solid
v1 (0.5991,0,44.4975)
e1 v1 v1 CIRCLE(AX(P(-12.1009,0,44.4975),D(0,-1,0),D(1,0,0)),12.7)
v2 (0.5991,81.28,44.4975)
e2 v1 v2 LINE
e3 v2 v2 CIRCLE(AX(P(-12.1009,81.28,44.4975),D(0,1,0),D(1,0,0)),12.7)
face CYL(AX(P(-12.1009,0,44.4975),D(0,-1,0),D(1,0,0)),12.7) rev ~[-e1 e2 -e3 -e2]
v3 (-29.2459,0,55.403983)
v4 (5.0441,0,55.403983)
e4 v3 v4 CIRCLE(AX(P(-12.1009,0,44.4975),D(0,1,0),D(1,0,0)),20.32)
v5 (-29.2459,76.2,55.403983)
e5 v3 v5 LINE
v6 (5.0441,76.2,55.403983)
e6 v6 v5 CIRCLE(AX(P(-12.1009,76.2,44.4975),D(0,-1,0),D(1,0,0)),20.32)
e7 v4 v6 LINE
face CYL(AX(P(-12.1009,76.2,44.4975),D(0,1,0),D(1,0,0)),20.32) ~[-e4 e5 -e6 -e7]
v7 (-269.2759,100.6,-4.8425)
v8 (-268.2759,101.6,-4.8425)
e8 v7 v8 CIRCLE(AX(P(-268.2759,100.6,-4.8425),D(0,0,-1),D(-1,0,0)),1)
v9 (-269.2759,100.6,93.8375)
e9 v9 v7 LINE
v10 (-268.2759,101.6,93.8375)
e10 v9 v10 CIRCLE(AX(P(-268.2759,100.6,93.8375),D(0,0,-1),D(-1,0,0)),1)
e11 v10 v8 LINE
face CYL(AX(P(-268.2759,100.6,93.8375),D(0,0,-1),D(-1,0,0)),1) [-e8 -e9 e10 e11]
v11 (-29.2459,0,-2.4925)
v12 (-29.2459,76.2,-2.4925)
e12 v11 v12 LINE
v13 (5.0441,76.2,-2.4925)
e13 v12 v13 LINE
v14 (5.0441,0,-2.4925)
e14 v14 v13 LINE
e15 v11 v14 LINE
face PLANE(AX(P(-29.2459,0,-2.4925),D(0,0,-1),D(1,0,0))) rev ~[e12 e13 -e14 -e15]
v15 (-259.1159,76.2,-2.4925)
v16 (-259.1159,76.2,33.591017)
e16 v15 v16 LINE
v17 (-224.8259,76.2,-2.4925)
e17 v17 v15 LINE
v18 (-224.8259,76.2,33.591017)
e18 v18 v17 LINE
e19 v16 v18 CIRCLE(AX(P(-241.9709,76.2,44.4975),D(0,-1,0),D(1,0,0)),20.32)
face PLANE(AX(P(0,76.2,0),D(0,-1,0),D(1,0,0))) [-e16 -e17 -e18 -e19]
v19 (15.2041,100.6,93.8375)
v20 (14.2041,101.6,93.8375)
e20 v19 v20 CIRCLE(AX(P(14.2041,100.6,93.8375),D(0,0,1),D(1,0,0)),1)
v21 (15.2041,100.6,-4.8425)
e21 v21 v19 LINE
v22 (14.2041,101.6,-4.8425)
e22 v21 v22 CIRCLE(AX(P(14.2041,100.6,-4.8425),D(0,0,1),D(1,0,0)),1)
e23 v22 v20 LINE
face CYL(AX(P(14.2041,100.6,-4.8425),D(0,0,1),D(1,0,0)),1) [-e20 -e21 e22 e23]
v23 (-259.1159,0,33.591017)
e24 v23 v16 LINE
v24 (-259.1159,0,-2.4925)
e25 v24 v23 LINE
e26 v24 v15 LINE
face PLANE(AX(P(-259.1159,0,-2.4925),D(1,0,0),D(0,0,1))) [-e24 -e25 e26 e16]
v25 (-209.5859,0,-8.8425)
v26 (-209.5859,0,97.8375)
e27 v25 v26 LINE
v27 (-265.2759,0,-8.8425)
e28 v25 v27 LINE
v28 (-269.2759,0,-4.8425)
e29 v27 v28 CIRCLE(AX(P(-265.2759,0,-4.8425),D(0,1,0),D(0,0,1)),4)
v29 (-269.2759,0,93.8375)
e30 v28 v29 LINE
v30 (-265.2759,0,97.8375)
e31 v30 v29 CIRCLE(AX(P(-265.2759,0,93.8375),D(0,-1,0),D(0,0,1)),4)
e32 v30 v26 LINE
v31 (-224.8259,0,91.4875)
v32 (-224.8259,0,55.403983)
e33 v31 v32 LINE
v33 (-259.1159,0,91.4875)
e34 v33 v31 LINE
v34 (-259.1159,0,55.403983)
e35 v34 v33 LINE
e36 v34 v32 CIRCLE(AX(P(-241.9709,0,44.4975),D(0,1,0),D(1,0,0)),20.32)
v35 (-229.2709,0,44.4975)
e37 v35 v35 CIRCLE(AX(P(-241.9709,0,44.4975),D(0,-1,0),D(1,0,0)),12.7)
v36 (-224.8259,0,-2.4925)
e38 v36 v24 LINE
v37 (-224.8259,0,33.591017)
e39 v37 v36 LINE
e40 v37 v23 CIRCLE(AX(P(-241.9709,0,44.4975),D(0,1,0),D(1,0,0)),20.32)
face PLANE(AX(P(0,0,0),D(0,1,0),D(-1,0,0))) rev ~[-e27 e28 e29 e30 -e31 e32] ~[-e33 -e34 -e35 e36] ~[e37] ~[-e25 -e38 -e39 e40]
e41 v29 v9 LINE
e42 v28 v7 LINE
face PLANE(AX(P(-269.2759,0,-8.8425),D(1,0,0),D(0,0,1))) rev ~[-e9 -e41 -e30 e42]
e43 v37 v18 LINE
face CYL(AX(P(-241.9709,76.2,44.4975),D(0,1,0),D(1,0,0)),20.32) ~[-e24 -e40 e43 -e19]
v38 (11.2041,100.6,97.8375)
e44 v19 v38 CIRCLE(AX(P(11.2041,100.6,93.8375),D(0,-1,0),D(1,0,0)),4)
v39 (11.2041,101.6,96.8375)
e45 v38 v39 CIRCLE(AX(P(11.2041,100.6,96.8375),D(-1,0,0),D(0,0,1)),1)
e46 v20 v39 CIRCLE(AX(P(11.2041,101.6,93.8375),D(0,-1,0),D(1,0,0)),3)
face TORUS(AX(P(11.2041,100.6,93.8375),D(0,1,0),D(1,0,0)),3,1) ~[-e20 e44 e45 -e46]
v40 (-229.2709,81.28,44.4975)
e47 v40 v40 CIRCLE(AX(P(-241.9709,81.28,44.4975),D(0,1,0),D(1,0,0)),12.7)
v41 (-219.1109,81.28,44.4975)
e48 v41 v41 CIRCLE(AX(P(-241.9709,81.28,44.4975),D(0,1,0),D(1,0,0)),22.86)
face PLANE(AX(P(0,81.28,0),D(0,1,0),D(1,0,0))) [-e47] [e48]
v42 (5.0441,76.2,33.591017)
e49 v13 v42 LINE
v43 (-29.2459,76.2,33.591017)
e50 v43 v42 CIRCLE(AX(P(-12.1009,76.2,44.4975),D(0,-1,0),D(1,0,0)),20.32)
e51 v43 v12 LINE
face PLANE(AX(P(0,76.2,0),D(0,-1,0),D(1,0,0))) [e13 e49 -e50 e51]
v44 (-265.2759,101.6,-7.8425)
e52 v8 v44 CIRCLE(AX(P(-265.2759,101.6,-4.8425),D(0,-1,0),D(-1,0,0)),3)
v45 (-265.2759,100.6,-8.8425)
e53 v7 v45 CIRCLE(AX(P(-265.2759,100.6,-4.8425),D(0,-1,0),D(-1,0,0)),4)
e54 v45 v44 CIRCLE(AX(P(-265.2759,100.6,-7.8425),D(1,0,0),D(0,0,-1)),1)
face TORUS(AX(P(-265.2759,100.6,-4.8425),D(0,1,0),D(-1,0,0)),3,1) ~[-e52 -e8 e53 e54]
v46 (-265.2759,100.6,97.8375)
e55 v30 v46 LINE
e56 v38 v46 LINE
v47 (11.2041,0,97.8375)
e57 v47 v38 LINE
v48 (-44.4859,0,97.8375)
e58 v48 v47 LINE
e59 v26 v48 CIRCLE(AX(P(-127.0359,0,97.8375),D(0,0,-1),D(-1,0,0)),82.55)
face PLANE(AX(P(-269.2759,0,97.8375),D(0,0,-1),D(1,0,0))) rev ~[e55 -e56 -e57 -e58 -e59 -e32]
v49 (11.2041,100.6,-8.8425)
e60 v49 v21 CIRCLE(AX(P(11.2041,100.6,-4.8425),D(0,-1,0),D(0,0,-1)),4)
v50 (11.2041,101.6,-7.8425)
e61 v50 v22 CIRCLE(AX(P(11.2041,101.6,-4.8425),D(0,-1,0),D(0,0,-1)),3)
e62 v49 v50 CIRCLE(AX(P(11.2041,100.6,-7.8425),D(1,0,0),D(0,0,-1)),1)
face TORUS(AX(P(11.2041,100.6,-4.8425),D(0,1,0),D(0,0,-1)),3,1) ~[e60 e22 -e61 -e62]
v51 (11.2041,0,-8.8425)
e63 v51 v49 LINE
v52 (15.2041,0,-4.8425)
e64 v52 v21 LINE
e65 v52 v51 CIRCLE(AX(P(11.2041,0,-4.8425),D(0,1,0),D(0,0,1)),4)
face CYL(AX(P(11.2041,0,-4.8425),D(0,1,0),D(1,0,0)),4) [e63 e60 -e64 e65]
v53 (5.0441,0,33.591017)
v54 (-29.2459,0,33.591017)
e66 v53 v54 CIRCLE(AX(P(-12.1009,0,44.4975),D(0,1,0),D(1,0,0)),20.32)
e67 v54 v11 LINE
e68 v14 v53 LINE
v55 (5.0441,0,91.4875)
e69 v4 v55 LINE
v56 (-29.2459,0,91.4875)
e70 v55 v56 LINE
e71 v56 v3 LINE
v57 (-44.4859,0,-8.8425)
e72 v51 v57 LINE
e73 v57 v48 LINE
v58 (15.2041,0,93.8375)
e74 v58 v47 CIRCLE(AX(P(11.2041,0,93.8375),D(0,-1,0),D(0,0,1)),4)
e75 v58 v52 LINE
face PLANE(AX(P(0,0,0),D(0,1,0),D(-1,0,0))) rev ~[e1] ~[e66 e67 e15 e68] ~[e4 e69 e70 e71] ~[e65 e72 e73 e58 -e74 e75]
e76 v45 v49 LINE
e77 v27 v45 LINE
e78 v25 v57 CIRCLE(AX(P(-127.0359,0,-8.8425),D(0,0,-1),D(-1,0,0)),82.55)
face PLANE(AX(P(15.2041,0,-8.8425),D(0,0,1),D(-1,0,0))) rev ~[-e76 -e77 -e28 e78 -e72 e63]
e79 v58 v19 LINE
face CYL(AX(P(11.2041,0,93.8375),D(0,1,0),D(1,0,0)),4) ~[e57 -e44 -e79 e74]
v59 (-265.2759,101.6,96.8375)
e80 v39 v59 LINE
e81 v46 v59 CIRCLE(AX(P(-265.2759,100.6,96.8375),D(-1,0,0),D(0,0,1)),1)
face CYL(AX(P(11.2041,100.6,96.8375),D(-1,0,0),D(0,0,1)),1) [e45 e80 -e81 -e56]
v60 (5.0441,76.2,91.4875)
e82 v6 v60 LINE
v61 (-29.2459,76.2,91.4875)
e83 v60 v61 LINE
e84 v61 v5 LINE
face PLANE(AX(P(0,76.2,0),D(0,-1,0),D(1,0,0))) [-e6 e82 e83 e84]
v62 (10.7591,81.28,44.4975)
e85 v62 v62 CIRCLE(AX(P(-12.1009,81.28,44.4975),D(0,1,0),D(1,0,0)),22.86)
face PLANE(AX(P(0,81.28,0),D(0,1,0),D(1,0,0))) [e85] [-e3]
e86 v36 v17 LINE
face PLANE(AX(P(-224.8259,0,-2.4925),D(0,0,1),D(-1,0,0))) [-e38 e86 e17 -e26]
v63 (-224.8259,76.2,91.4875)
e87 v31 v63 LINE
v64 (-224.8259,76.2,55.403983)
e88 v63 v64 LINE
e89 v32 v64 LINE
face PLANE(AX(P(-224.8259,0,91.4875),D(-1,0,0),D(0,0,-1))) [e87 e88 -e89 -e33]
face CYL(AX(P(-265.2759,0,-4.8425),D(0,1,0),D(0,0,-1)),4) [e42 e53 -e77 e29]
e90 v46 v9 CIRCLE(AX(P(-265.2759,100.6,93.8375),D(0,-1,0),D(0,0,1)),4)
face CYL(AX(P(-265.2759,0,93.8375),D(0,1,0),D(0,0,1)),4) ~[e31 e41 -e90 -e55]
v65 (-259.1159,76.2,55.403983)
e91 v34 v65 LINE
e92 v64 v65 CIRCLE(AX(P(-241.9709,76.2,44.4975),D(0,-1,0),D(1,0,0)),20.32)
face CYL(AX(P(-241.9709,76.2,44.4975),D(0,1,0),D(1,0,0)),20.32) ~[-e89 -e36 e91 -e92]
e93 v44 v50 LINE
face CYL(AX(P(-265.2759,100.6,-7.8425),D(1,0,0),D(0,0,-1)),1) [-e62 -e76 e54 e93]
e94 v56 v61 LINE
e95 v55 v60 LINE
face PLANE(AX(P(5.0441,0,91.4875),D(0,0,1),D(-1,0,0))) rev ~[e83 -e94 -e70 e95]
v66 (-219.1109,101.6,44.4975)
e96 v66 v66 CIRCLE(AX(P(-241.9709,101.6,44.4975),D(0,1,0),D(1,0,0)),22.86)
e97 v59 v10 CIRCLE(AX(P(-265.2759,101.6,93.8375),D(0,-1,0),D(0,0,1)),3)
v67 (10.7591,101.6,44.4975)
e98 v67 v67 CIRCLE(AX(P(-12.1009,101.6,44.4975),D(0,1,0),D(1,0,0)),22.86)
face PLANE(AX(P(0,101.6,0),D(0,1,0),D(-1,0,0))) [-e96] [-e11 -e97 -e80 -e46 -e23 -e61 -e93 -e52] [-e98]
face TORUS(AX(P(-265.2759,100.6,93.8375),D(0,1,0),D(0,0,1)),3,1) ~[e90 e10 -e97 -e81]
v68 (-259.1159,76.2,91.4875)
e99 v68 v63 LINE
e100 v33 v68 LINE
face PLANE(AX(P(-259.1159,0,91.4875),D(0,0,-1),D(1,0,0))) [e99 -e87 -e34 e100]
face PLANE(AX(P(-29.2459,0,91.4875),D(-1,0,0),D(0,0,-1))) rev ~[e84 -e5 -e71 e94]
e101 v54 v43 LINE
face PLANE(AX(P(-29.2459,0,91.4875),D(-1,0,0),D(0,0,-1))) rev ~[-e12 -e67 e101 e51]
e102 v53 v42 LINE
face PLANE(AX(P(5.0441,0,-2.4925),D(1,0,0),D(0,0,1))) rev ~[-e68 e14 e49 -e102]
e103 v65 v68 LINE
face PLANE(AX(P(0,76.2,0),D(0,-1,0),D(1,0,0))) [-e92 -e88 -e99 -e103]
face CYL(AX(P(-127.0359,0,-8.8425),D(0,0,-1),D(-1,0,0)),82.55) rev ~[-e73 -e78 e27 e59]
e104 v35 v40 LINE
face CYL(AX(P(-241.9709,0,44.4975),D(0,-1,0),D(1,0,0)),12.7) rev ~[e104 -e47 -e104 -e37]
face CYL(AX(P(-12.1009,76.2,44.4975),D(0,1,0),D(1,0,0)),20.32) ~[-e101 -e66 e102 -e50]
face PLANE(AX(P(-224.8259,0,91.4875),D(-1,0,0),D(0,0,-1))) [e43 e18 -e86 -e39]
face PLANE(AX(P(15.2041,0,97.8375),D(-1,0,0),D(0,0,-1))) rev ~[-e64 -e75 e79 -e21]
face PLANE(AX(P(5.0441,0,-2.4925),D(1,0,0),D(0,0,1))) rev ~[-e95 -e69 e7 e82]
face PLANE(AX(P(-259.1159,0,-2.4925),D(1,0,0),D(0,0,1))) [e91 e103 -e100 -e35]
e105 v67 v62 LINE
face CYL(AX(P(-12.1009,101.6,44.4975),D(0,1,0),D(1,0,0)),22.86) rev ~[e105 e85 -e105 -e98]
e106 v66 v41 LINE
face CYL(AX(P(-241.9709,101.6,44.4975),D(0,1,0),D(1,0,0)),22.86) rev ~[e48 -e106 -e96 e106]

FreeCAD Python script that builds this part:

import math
import FreeCAD as App
import Part
import Sketcher
from FreeCAD import Vector
Q = App.Units.Quantity


def edges_at(feature, points):
    """Names of the edges that pass closest to the given points."""
    edges = feature.Shape.Edges
    near = lambda p: min(range(len(edges)), key=lambda i: edges[i].distToShape(Part.Vertex(*p))[0])
    return sorted({f"Edge{near(p) + 1}" for p in points})

doc = App.newDocument("Part")
params = doc.addObject("Spreadsheet::Sheet", "Params")
for row, (alias, value) in enumerate([
    ("sketch1_width", "11.2 in"),
    ("sketch1_height", "4.2 in"),
    ("pad1_length", "4 in"),
    ("sketch2_radius", "3.25 in"),
    ("pocket1_length", "5 in"),
    ("sketch3_height", "3.7 in"),
    ("sketch3_width", "1.35 in"),
    ("pocket2_length", "3 in"),
    ("sketch4_diameter", "1.6 in"),
    ("pad2_length", "3 in"),
    ("sketch5_diameter", "1 in"),
    ("pocket3_length", "4 in"),
    ("sketch6_diameter", "1.8 in"),
    ("sketch6_diameter2", "1 in"),
    ("pocket4_length", "0.8 in"),
    ("sketch7_height", "3.7 in"),
    ("sketch7_width", "1.35 in"),
    ("pocket5_length", "3 in"),
    ("sketch8_diameter", "1.6 in"),
    ("pad3_length", "3 in"),
    ("sketch9_diameter", "1 in"),
    ("pocket6_length", "4 in"),
    ("sketch10_diameter", "1.8 in"),
    ("sketch10_diameter2", "1 in"),
    ("pocket7_length", "0.8 in"),
    ("fillet_radius", "4 mm"),
    ("fillet2_radius", "1 mm"),
], start=1):
    params.set(f"A{row}", alias)
    params.set(f"B{row}", "=" + value)
    params.setAlias(f"B{row}", alias)

body = doc.addObject("PartDesign::Body", "Body")

# Sketch on XZ plane
sketch1 = body.newObject("Sketcher::SketchObject", "Sketch")
sketch1.AttachmentSupport = (doc.getObject("XZ_Plane"), [""])
sketch1.MapMode = "FlatFace"
sketch1.addGeometry([
    Part.LineSegment(Vector(15, 98, 0), Vector(15, -9, 0)),
    Part.LineSegment(Vector(15, -9, 0), Vector(-269, -9, 0)),
    Part.LineSegment(Vector(-269, -9, 0), Vector(-269, 98, 0)),
    Part.LineSegment(Vector(-269, 98, 0), Vector(15, 98, 0)),
], False)
sketch1.addConstraint([
    Sketcher.Constraint("Coincident", 0, 2, 1, 1),
    Sketcher.Constraint("Coincident", 1, 2, 2, 1),
    Sketcher.Constraint("Coincident", 2, 2, 3, 1),
    Sketcher.Constraint("Coincident", 3, 2, 0, 1),
    Sketcher.Constraint("Vertical", 0),
    Sketcher.Constraint("Horizontal", 1),
    Sketcher.Constraint("Vertical", 2),
    Sketcher.Constraint("Horizontal", 3),
    Sketcher.Constraint("DistanceX", 1, 2, 1, 1, Q("11.2 in")),
    Sketcher.Constraint("DistanceY", 0, 2, 0, 1, Q("4.2 in")),
    Sketcher.Constraint("DistanceX", -1, 1, 0, 2, 15.204),
    Sketcher.Constraint("DistanceY", 0, 2, -1, 1, 8.8425),
])
sketch1.setExpression("Constraints[8]", "Params.sketch1_width")
sketch1.setExpression("Constraints[9]", "Params.sketch1_height")
pad1 = body.newObject("PartDesign::Pad", "Pad")
pad1.Profile = sketch1
pad1.setExpression("Length", "Params.pad1_length")
pad1.Reversed = True

# Sketch on XY plane
sketch2 = body.newObject("Sketcher::SketchObject", "Sketch001")
sketch2.AttachmentSupport = (doc.getObject("XY_Plane"), [""])
sketch2.MapMode = "FlatFace"
sketch2.AttachmentOffset = App.Placement(Vector(0, 0, -8.8425), App.Rotation())
sketch2.addGeometry([
    Part.ArcOfCircle(Part.Circle(Vector(-127, 0, 0), Vector(0, 0, 1), 83), math.radians(0), math.radians(180)),
    Part.LineSegment(Vector(-44, 0, 0), Vector(-210, 0, 0)),
], False)
sketch2.addConstraint([
    Sketcher.Constraint("Coincident", 0, 1, 1, 1),
    Sketcher.Constraint("Coincident", 1, 2, 0, 2),
    Sketcher.Constraint("Horizontal", 1),
    Sketcher.Constraint("PointOnObject", 0, 3, -1),
    Sketcher.Constraint("PointOnObject", 0, 1, -1),
    Sketcher.Constraint("Radius", 0, Q("3.25 in")),
    Sketcher.Constraint("DistanceX", 0, 3, -1, 1, 127.036),
])
sketch2.setExpression("Constraints[5]", "Params.sketch2_radius")
pocket1 = body.newObject("PartDesign::Pocket", "Pocket")
pocket1.Profile = sketch2
pocket1.setExpression("Length", "Params.pocket1_length")
pocket1.Reversed = True

# Sketch on XZ plane
sketch3 = body.newObject("Sketcher::SketchObject", "Sketch002")
sketch3.AttachmentSupport = (doc.getObject("XZ_Plane"), [""])
sketch3.MapMode = "FlatFace"
sketch3.addGeometry([
    Part.LineSegment(Vector(-259, 91, 0), Vector(-259, -2, 0)),
    Part.LineSegment(Vector(-259, -2, 0), Vector(-225, -2, 0)),
    Part.LineSegment(Vector(-225, -2, 0), Vector(-225, 91, 0)),
    Part.LineSegment(Vector(-225, 91, 0), Vector(-259, 91, 0)),
], False)
sketch3.addConstraint([
    Sketcher.Constraint("Coincident", 0, 2, 1, 1),
    Sketcher.Constraint("Coincident", 1, 2, 2, 1),
    Sketcher.Constraint("Coincident", 2, 2, 3, 1),
    Sketcher.Constraint("Coincident", 3, 2, 0, 1),
    Sketcher.Constraint("Vertical", 0),
    Sketcher.Constraint("Horizontal", 1),
    Sketcher.Constraint("Vertical", 2),
    Sketcher.Constraint("Horizontal", 3),
    Sketcher.Constraint("DistanceY", 0, 2, 0, 1, Q("3.7 in")),
    Sketcher.Constraint("DistanceX", 1, 1, 1, 2, Q("1.35 in")),
    Sketcher.Constraint("DistanceX", 0, 2, -1, 1, 259.116),
    Sketcher.Constraint("DistanceY", 0, 2, -1, 1, 2.4925),
])
sketch3.setExpression("Constraints[8]", "Params.sketch3_height")
sketch3.setExpression("Constraints[9]", "Params.sketch3_width")
pocket2 = body.newObject("PartDesign::Pocket", "Pocket001")
pocket2.Profile = sketch3
pocket2.setExpression("Length", "Params.pocket2_length")

# Sketch on XZ plane
sketch4 = body.newObject("Sketcher::SketchObject", "Sketch003")
sketch4.AttachmentSupport = (doc.getObject("XZ_Plane"), [""])
sketch4.MapMode = "FlatFace"
sketch4.AttachmentOffset = App.Placement(Vector(0, 0, -3 * 25.4), App.Rotation())
sketch4.addGeometry(Part.Circle(Vector(-242, 44, 0), Vector(0, 0, 1), 20), False)
sketch4.addConstraint([
    Sketcher.Constraint("Diameter", 0, Q("1.6 in")),
    Sketcher.Constraint("DistanceX", 0, 3, -1, 1, 241.971),
    Sketcher.Constraint("DistanceY", -1, 1, 0, 3, 44.4975),
])
sketch4.setExpression("Constraints[0]", "Params.sketch4_diameter")
pad2 = body.newObject("PartDesign::Pad", "Pad001")
pad2.Profile = sketch4
pad2.setExpression("Length", "Params.pad2_length")

# Sketch on XZ plane
sketch5 = body.newObject("Sketcher::SketchObject", "Sketch004")
sketch5.AttachmentSupport = (doc.getObject("XZ_Plane"), [""])
sketch5.MapMode = "FlatFace"
sketch5.addGeometry(Part.Circle(Vector(-242, 44, 0), Vector(0, 0, 1), 13), False)
sketch5.addConstraint([
    Sketcher.Constraint("Diameter", 0, Q("1 in")),
    Sketcher.Constraint("DistanceX", 0, 3, -1, 1, 241.971),
    Sketcher.Constraint("DistanceY", -1, 1, 0, 3, 44.4975),
])
sketch5.setExpression("Constraints[0]", "Params.sketch5_diameter")
pocket3 = body.newObject("PartDesign::Pocket", "Pocket002")
pocket3.Profile = sketch5
pocket3.setExpression("Length", "Params.pocket3_length")

# Sketch on XZ plane
sketch6 = body.newObject("Sketcher::SketchObject", "Sketch005")
sketch6.AttachmentSupport = (doc.getObject("XZ_Plane"), [""])
sketch6.MapMode = "FlatFace"
sketch6.AttachmentOffset = App.Placement(Vector(0, 0, -4 * 25.4), App.Rotation())
sketch6.addGeometry([
    Part.Circle(Vector(-242, 44, 0), Vector(0, 0, 1), 23),
    Part.Circle(Vector(-242, 44, 0), Vector(0, 0, 1), 13),
], False)
sketch6.addConstraint([
    Sketcher.Constraint("Coincident", 1, 3, 0, 3),
    Sketcher.Constraint("Diameter", 0, Q("1.8 in")),
    Sketcher.Constraint("Diameter", 1, Q("1 in")),
    Sketcher.Constraint("DistanceX", 0, 3, -1, 1, 241.971),
    Sketcher.Constraint("DistanceY", -1, 1, 0, 3, 44.4975),
])
sketch6.setExpression("Constraints[1]", "Params.sketch6_diameter")
sketch6.setExpression("Constraints[2]", "Params.sketch6_diameter2")
pocket4 = body.newObject("PartDesign::Pocket", "Pocket003")
pocket4.Profile = sketch6
pocket4.setExpression("Length", "Params.pocket4_length")
pocket4.Reversed = True

# Sketch on XZ plane
sketch7 = body.newObject("Sketcher::SketchObject", "Sketch006")
sketch7.AttachmentSupport = (doc.getObject("XZ_Plane"), [""])
sketch7.MapMode = "FlatFace"
sketch7.addGeometry([
    Part.LineSegment(Vector(5, -2, 0), Vector(5, 91, 0)),
    Part.LineSegment(Vector(5, 91, 0), Vector(-29, 91, 0)),
    Part.LineSegment(Vector(-29, 91, 0), Vector(-29, -2, 0)),
    Part.LineSegment(Vector(-29, -2, 0), Vector(5, -2, 0)),
], False)
sketch7.addConstraint([
    Sketcher.Constraint("Coincident", 0, 2, 1, 1),
    Sketcher.Constraint("Coincident", 1, 2, 2, 1),
    Sketcher.Constraint("Coincident", 2, 2, 3, 1),
    Sketcher.Constraint("Coincident", 3, 2, 0, 1),
    Sketcher.Constraint("Vertical", 0),
    Sketcher.Constraint("Horizontal", 1),
    Sketcher.Constraint("Vertical", 2),
    Sketcher.Constraint("Horizontal", 3),
    Sketcher.Constraint("DistanceY", 0, 1, 0, 2, Q("3.7 in")),
    Sketcher.Constraint("DistanceX", 1, 2, 1, 1, Q("1.35 in")),
    Sketcher.Constraint("DistanceX", -1, 1, 0, 2, 5.044),
    Sketcher.Constraint("DistanceY", -1, 1, 0, 2, 91.4875),
])
sketch7.setExpression("Constraints[8]", "Params.sketch7_height")
sketch7.setExpression("Constraints[9]", "Params.sketch7_width")
pocket5 = body.newObject("PartDesign::Pocket", "Pocket004")
pocket5.Profile = sketch7
pocket5.setExpression("Length", "Params.pocket5_length")

# Sketch on XZ plane
sketch8 = body.newObject("Sketcher::SketchObject", "Sketch007")
sketch8.AttachmentSupport = (doc.getObject("XZ_Plane"), [""])
sketch8.MapMode = "FlatFace"
sketch8.AttachmentOffset = App.Placement(Vector(0, 0, -3 * 25.4), App.Rotation())
sketch8.addGeometry(Part.Circle(Vector(-12, 44, 0), Vector(0, 0, 1), 20), False)
sketch8.addConstraint([
    Sketcher.Constraint("Diameter", 0, Q("1.6 in")),
    Sketcher.Constraint("DistanceX", 0, 3, -1, 1, 12.101),
    Sketcher.Constraint("DistanceY", -1, 1, 0, 3, 44.4975),
])
sketch8.setExpression("Constraints[0]", "Params.sketch8_diameter")
pad3 = body.newObject("PartDesign::Pad", "Pad002")
pad3.Profile = sketch8
pad3.setExpression("Length", "Params.pad3_length")

# Sketch on XZ plane
sketch9 = body.newObject("Sketcher::SketchObject", "Sketch008")
sketch9.AttachmentSupport = (doc.getObject("XZ_Plane"), [""])
sketch9.MapMode = "FlatFace"
sketch9.addGeometry(Part.Circle(Vector(-12, 44, 0), Vector(0, 0, 1), 13), False)
sketch9.addConstraint([
    Sketcher.Constraint("Diameter", 0, Q("1 in")),
    Sketcher.Constraint("DistanceX", 0, 3, -1, 1, 12.101),
    Sketcher.Constraint("DistanceY", -1, 1, 0, 3, 44.4975),
])
sketch9.setExpression("Constraints[0]", "Params.sketch9_diameter")
pocket6 = body.newObject("PartDesign::Pocket", "Pocket005")
pocket6.Profile = sketch9
pocket6.setExpression("Length", "Params.pocket6_length")

# Sketch on XZ plane
sketch10 = body.newObject("Sketcher::SketchObject", "Sketch009")
sketch10.AttachmentSupport = (doc.getObject("XZ_Plane"), [""])
sketch10.MapMode = "FlatFace"
sketch10.AttachmentOffset = App.Placement(Vector(0, 0, -4 * 25.4), App.Rotation())
sketch10.addGeometry([
    Part.Circle(Vector(-12, 44, 0), Vector(0, 0, 1), 23),
    Part.Circle(Vector(-12, 44, 0), Vector(0, 0, 1), 13),
], False)
sketch10.addConstraint([
    Sketcher.Constraint("Coincident", 1, 3, 0, 3),
    Sketcher.Constraint("Diameter", 0, Q("1.8 in")),
    Sketcher.Constraint("Diameter", 1, Q("1 in")),
    Sketcher.Constraint("DistanceX", 0, 3, -1, 1, 12.101),
    Sketcher.Constraint("DistanceY", -1, 1, 0, 3, 44.4975),
])
sketch10.setExpression("Constraints[1]", "Params.sketch10_diameter")
sketch10.setExpression("Constraints[2]", "Params.sketch10_diameter2")
pocket7 = body.newObject("PartDesign::Pocket", "Pocket006")
pocket7.Profile = sketch10
pocket7.setExpression("Length", "Params.pocket7_length")
pocket7.Reversed = True
doc.recompute()

fillet = body.newObject("PartDesign::Fillet", "Fillet")
fillet.Base = (pocket7, edges_at(pocket7, [
    (15.204, 50.8, 97.838),
    (15.204, 50.8, -8.842),
    (-269.276, 50.8, 97.838),
    (-269.276, 50.8, -8.842),
]))
fillet.setExpression("Radius", "Params.fillet_radius")
doc.recompute()

fillet2 = body.newObject("PartDesign::Fillet", "Fillet001")
fillet2.Base = (fillet, edges_at(fillet, [
    (14.033, 101.6, 96.666),
    (15.204, 101.6, 44.498),
    (14.033, 101.6, -7.671),
    (-127.036, 101.6, -8.842),
    (-268.104, 101.6, -7.671),
    (-269.276, 101.6, 44.498),
    (-268.104, 101.6, 96.666),
    (-127.036, 101.6, 97.838),
]))
fillet2.setExpression("Radius", "Params.fillet2_radius")

doc.recompute()
